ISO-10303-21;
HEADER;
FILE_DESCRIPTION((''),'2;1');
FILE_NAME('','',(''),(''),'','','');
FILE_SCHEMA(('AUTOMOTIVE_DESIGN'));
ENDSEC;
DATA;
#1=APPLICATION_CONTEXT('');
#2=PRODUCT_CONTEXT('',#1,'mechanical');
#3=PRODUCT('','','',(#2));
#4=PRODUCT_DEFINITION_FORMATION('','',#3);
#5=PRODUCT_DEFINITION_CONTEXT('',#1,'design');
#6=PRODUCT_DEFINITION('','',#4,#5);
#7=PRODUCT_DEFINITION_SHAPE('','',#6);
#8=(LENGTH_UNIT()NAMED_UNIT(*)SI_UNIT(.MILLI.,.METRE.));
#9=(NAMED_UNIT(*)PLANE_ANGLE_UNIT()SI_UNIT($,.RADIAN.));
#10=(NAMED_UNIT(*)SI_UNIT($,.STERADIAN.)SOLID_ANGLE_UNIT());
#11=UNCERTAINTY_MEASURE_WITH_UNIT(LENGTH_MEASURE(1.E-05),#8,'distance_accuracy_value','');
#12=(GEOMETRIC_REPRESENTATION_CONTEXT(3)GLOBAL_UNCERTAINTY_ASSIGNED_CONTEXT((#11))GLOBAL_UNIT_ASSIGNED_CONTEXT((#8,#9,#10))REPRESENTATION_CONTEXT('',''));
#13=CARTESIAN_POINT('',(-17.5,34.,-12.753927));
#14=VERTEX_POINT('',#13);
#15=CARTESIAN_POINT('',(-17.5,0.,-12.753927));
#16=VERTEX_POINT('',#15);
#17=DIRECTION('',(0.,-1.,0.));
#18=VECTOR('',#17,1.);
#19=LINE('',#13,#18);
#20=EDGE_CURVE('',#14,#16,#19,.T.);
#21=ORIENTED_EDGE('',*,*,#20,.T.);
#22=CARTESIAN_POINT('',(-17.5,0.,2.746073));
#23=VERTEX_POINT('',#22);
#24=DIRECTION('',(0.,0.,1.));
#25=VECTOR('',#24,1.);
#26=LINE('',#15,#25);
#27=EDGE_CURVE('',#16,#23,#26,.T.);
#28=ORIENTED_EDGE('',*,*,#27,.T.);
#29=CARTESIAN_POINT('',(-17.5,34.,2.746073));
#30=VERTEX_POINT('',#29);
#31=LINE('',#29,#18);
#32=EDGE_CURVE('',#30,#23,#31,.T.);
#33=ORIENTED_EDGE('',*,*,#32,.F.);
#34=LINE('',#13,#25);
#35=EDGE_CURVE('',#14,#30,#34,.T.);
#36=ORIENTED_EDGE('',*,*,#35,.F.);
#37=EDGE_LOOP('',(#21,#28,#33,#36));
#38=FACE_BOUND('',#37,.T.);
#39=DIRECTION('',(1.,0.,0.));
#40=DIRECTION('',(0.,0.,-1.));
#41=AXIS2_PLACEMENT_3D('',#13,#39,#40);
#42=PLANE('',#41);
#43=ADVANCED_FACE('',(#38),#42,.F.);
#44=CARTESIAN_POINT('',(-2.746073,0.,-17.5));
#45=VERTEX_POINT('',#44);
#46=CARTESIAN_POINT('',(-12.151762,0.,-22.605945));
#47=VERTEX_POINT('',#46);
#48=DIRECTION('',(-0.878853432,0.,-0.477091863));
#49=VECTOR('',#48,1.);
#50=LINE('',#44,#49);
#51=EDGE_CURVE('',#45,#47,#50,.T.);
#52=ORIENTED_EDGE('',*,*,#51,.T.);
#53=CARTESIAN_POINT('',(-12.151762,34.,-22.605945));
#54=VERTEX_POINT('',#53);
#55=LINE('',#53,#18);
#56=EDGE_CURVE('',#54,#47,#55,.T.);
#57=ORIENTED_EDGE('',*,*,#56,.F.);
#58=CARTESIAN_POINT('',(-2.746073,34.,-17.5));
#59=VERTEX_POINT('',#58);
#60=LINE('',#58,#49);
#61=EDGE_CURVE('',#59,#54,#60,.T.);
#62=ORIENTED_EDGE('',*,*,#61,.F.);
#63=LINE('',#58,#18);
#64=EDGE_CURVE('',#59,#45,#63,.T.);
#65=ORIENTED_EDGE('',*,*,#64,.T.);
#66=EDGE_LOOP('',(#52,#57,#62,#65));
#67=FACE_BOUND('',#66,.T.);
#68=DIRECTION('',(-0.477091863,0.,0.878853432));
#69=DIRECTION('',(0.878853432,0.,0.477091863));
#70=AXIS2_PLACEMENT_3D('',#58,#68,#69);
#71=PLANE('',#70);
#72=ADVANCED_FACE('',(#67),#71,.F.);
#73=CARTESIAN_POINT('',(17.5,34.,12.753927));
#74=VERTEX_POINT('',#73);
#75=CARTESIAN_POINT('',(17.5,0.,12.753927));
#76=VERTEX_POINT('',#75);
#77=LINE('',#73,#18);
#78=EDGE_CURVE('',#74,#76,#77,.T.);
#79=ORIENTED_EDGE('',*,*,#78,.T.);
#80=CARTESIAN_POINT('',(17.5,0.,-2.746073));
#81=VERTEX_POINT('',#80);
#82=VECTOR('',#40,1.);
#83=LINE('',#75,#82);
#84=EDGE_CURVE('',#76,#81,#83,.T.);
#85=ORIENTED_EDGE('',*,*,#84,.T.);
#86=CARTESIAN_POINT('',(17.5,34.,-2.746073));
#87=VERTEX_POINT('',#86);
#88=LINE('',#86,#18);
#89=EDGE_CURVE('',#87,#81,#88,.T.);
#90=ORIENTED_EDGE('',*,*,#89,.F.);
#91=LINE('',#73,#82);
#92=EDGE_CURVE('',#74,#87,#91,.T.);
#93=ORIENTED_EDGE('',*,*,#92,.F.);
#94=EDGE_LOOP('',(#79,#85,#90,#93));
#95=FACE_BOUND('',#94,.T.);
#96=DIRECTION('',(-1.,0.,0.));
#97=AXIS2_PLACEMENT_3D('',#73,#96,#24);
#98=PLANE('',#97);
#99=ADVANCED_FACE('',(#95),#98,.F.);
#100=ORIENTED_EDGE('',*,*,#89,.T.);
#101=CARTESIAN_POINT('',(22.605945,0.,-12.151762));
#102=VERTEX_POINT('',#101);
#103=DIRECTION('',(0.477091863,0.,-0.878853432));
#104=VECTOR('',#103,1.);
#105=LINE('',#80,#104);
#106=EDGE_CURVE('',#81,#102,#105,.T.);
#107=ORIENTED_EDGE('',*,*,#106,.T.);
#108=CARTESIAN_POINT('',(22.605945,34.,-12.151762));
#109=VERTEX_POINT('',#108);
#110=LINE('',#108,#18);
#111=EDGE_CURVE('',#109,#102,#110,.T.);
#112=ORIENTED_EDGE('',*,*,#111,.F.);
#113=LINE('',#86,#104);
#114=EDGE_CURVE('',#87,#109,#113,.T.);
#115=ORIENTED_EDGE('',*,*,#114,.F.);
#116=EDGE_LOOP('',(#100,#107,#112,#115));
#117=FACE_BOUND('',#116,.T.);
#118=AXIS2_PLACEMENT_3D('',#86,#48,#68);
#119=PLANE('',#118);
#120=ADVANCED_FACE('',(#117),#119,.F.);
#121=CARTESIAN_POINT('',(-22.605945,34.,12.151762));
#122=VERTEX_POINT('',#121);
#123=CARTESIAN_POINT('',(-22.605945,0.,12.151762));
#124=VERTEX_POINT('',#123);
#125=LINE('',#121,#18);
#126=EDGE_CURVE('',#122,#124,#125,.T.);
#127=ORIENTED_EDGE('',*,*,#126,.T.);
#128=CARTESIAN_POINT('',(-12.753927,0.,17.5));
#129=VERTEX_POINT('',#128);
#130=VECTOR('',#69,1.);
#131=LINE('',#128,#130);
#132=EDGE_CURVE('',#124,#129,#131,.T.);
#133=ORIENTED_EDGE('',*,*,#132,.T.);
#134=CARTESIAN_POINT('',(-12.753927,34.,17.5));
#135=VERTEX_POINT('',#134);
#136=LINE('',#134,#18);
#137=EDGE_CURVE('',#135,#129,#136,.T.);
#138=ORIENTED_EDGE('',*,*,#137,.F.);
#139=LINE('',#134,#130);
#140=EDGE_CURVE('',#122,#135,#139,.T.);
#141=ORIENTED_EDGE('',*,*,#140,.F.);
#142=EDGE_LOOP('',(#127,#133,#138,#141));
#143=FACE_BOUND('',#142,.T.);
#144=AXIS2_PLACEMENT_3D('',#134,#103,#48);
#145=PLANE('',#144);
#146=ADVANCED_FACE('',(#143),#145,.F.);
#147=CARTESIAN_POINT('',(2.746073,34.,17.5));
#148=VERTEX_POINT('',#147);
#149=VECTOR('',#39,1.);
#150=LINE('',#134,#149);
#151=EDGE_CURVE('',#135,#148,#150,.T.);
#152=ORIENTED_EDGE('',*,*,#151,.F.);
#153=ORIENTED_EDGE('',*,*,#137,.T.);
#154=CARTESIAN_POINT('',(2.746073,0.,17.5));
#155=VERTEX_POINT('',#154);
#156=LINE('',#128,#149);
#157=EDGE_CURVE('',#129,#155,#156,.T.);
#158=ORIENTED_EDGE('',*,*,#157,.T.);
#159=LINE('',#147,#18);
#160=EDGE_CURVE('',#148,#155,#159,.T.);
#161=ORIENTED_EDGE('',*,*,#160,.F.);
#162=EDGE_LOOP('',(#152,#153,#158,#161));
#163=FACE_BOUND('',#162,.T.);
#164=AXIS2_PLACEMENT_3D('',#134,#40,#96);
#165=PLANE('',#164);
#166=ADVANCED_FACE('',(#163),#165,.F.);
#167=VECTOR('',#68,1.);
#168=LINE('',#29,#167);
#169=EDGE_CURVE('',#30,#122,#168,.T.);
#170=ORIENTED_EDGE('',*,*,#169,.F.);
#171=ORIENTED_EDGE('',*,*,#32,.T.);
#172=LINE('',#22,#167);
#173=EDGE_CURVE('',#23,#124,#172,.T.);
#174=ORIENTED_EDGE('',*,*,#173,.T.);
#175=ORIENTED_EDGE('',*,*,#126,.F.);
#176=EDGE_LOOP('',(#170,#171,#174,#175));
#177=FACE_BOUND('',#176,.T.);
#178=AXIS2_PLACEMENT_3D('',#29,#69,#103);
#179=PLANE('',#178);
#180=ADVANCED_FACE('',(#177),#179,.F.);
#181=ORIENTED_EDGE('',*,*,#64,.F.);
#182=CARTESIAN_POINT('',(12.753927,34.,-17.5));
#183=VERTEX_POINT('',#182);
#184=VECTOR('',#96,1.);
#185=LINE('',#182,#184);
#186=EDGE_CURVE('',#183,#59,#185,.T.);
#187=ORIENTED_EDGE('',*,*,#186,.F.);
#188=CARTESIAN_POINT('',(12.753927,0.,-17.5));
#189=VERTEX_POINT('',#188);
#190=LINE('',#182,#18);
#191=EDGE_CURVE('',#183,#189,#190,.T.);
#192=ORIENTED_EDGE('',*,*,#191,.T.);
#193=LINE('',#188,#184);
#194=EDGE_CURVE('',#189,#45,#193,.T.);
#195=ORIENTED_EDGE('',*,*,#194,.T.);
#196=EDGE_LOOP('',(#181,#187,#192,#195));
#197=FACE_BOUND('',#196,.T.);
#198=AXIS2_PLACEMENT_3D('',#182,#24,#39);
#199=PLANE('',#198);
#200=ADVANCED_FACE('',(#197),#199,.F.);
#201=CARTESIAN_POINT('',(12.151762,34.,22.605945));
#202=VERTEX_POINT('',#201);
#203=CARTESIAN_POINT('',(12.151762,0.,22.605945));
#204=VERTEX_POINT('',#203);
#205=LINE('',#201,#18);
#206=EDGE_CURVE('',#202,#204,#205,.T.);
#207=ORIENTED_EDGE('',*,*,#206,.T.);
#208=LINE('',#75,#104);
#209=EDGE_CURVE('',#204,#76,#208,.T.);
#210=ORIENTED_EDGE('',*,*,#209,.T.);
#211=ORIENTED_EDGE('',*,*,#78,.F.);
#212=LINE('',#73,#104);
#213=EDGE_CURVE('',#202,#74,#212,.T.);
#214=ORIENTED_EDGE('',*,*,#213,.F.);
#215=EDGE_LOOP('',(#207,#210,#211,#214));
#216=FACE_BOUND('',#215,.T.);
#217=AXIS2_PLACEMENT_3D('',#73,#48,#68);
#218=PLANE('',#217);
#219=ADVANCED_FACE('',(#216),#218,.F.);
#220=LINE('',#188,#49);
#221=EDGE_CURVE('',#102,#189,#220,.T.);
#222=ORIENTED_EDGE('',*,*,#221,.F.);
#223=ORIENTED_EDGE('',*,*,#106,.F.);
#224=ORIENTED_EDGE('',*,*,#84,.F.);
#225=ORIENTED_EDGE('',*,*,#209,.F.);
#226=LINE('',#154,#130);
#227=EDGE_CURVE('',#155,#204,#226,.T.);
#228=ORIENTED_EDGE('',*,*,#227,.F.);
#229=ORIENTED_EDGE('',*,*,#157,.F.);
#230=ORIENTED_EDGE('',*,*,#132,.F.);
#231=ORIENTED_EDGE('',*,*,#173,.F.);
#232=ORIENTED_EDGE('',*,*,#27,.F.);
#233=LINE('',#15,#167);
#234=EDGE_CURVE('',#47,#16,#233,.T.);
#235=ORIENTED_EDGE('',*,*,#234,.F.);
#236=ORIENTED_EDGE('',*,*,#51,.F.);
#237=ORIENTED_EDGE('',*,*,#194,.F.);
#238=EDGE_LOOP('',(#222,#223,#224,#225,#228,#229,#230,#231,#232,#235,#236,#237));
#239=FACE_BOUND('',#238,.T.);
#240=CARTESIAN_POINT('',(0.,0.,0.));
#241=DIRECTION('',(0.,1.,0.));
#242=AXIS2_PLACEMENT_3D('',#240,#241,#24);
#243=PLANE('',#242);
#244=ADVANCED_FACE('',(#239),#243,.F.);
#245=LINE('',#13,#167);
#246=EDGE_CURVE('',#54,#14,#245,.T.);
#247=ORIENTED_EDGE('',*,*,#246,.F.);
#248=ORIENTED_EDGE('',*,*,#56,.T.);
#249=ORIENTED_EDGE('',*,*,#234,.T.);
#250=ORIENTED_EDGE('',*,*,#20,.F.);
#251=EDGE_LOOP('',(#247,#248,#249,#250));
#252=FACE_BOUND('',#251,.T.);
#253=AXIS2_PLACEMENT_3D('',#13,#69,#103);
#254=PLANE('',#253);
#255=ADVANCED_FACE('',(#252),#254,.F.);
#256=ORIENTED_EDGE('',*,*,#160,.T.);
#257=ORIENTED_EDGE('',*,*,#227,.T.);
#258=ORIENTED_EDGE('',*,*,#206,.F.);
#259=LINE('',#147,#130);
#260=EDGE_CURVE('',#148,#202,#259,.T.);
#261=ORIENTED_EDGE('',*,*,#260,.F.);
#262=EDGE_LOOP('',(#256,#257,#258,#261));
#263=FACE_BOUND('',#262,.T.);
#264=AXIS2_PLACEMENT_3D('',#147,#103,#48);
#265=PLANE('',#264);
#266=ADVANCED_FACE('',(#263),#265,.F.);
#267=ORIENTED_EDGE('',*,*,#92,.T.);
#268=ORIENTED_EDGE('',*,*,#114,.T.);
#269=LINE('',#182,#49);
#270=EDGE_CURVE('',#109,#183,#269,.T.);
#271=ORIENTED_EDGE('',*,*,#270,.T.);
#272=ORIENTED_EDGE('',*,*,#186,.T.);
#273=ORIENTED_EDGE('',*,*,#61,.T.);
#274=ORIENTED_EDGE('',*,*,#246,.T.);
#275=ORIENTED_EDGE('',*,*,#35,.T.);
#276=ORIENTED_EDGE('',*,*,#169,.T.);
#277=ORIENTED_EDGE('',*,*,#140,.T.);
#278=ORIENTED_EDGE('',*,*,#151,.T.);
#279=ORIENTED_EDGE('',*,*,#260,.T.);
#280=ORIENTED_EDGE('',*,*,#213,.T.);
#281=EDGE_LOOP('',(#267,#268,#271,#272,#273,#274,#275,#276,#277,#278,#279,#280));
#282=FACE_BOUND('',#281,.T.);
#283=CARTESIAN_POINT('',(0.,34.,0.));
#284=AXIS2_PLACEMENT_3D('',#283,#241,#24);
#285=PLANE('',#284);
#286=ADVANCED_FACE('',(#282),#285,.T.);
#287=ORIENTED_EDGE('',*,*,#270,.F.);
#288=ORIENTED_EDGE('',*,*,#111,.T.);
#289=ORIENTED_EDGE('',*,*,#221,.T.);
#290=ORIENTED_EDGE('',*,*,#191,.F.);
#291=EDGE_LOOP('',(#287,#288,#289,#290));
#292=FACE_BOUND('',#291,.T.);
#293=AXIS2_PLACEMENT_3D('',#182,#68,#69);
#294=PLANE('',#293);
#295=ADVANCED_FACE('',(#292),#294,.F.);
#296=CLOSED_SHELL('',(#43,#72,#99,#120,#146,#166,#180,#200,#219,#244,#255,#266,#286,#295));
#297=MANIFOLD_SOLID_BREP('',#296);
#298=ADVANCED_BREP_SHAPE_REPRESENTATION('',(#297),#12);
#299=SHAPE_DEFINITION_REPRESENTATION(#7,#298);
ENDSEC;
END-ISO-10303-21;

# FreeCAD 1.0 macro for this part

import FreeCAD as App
import Part
import Sketcher

doc = App.newDocument("Part")
body = doc.addObject("PartDesign::Body", "Body")

# Sketch on XZ plane
sketch1 = doc.addObject("Sketcher::SketchObject", "Sketch")
body.addObject(sketch1)
sketch1.AttachmentSupport = (doc.XZ_Plane, [""])
sketch1.MapMode = "FlatFace"
sketch1.addGeometry([
    Part.LineSegment(App.Vector(-12, -23, 0), App.Vector(-18, -13, 0)),  # 0
    Part.LineSegment(App.Vector(-18, -13, 0), App.Vector(-18, 3, 0)),  # 1
    Part.LineSegment(App.Vector(-18, 3, 0), App.Vector(-23, 12, 0)),  # 2
    Part.LineSegment(App.Vector(-23, 12, 0), App.Vector(-13, 18, 0)),  # 3
    Part.LineSegment(App.Vector(-13, 18, 0), App.Vector(3, 18, 0)),  # 4
    Part.LineSegment(App.Vector(3, 18, 0), App.Vector(12, 23, 0)),  # 5
    Part.LineSegment(App.Vector(12, 23, 0), App.Vector(18, 13, 0)),  # 6
    Part.LineSegment(App.Vector(18, 13, 0), App.Vector(18, -3, 0)),  # 7
    Part.LineSegment(App.Vector(18, -3, 0), App.Vector(23, -12, 0)),  # 8
    Part.LineSegment(App.Vector(23, -12, 0), App.Vector(13, -18, 0)),  # 9
    Part.LineSegment(App.Vector(13, -18, 0), App.Vector(-3, -18, 0)),  # 10
    Part.LineSegment(App.Vector(-3, -18, 0), App.Vector(-12, -23, 0)),  # 11
], False)
sketch1.addConstraint([
    Sketcher.Constraint("Coincident", 0, 2, 1, 1),
    Sketcher.Constraint("Coincident", 1, 2, 2, 1),
    Sketcher.Constraint("Coincident", 2, 2, 3, 1),
    Sketcher.Constraint("Coincident", 3, 2, 4, 1),
    Sketcher.Constraint("Coincident", 4, 2, 5, 1),
    Sketcher.Constraint("Coincident", 5, 2, 6, 1),
    Sketcher.Constraint("Coincident", 6, 2, 7, 1),
    Sketcher.Constraint("Coincident", 7, 2, 8, 1),
    Sketcher.Constraint("Coincident", 8, 2, 9, 1),
    Sketcher.Constraint("Coincident", 9, 2, 10, 1),
    Sketcher.Constraint("Coincident", 10, 2, 11, 1),
    Sketcher.Constraint("Coincident", 11, 2, 0, 1),
    Sketcher.Constraint("Vertical", 1),
    Sketcher.Constraint("Horizontal", 4),
    Sketcher.Constraint("Vertical", 7),
    Sketcher.Constraint("Horizontal", 10),
    Sketcher.Constraint("Symmetric", 0, 2, 6, 2, -1, 1),
    Sketcher.Constraint("Symmetric", 2, 2, 8, 2, -1, 1),
    Sketcher.Constraint("Symmetric", 3, 2, 9, 2, -1, 1),
    Sketcher.Constraint("Symmetric", 5, 2, 11, 2, -1, 1),
    Sketcher.Constraint("Parallel", 0, 2),
    Sketcher.Constraint("Perpendicular", 2, 3),
    Sketcher.Constraint("Parallel", 3, 5),
    Sketcher.Constraint("Parallel", 6, 8),
    Sketcher.Constraint("Parallel", 9, 11),
    Sketcher.Constraint("Equal", 10, 1),
    Sketcher.Constraint("Equal", 0, 3),
    Sketcher.Constraint("Equal", 2, 5),
    Sketcher.Constraint("DistanceX", 4, 1, 4, 2, 15.5),
    Sketcher.Constraint("DistanceX", 1, 2, 6, 2, 35.0),
    Sketcher.Constraint("Distance", 0, 11.210081),
    Sketcher.Constraint("DistanceY", -1, 1, 2, 2, 12.151762),
])
pad1 = doc.addObject("PartDesign::Pad", "Pad")
body.addObject(pad1)
pad1.Profile = sketch1
pad1.Length = 34
pad1.Reversed = True

doc.recompute()
